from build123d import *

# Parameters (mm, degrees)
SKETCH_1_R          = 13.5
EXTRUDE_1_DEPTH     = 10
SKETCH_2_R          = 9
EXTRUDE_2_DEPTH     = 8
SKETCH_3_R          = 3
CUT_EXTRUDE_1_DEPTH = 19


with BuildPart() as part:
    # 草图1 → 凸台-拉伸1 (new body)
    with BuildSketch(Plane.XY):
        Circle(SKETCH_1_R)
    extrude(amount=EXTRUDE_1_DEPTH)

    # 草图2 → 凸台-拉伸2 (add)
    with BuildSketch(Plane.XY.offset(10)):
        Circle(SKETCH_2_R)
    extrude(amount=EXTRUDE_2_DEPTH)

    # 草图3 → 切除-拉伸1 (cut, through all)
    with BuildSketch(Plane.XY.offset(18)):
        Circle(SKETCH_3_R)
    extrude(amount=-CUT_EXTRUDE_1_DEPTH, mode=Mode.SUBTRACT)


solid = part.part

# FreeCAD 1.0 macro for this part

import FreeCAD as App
import Part
import Sketcher
from FreeCAD import Vector

doc = App.newDocument("Part")
body = doc.addObject("PartDesign::Body", "Body")

# Sketch on XY plane
sketch1 = body.newObject("Sketcher::SketchObject", "Sketch")
sketch1.AttachmentSupport = (doc.getObject("XY_Plane"), [""])
sketch1.MapMode = "FlatFace"
sketch1.addGeometry(Part.Circle(Vector(0, 0, 0), Vector(0, 0, 1), 14), False)
sketch1.addConstraint([
    Sketcher.Constraint("Coincident", 0, 3, -1, 1),
    Sketcher.Constraint("Diameter", 0, 27.0),
])
pad1 = body.newObject("PartDesign::Pad", "Pad")
pad1.Profile = sketch1
pad1.Length = 10

# Sketch on XY plane
sketch2 = body.newObject("Sketcher::SketchObject", "Sketch001")
sketch2.AttachmentSupport = (doc.getObject("XY_Plane"), [""])
sketch2.MapMode = "FlatFace"
sketch2.AttachmentOffset = App.Placement(Vector(0, 0, 10), App.Rotation())
sketch2.addGeometry(Part.Circle(Vector(0, 0, 0), Vector(0, 0, 1), 9), False)
sketch2.addConstraint([
    Sketcher.Constraint("Coincident", 0, 3, -1, 1),
    Sketcher.Constraint("Diameter", 0, 18.0),
])
pad2 = body.newObject("PartDesign::Pad", "Pad001")
pad2.Profile = sketch2
pad2.Length = 8

# Sketch on XY plane
sketch3 = body.newObject("Sketcher::SketchObject", "Sketch002")
sketch3.AttachmentSupport = (doc.getObject("XY_Plane"), [""])
sketch3.MapMode = "FlatFace"
sketch3.AttachmentOffset = App.Placement(Vector(0, 0, 18), App.Rotation())
sketch3.addGeometry(Part.Circle(Vector(0, 0, 0), Vector(0, 0, 1), 3), False)
sketch3.addConstraint([
    Sketcher.Constraint("Coincident", 0, 3, -1, 1),
    Sketcher.Constraint("Diameter", 0, 6.0),
])
pocket1 = body.newObject("PartDesign::Pocket", "Pocket")
pocket1.Profile = sketch3
pocket1.Type = "ThroughAll"

doc.recompute()
